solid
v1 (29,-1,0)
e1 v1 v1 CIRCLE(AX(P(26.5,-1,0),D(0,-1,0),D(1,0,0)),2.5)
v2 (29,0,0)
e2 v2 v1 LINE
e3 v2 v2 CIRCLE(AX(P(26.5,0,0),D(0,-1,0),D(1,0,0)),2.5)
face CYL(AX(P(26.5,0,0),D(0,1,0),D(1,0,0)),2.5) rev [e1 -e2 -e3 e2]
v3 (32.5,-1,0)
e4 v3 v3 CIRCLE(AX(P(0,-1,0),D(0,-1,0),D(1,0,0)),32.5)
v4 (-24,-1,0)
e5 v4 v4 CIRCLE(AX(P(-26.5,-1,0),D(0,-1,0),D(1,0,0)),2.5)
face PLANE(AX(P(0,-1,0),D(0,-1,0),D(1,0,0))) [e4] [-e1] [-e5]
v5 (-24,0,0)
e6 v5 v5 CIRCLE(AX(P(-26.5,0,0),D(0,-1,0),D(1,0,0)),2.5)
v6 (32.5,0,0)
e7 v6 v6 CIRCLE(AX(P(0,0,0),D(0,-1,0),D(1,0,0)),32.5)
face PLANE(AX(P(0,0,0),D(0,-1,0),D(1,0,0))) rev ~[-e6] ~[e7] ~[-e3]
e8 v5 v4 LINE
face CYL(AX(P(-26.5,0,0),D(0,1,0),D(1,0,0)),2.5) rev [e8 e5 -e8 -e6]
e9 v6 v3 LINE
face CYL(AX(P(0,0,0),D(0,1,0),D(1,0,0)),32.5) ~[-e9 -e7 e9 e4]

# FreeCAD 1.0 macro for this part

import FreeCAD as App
import Part
import Sketcher

V = App.Vector

doc = App.newDocument("Part")
params = doc.addObject("Spreadsheet::Sheet", "Params")
for row, (alias, value) in enumerate([
    ("sketch1_diameter", "65 mm"),
    ("sketch1_diameter2", "5 mm"),
    ("pad1_length", "1 mm"),
], start=1):
    params.set(f"A{row}", alias)
    params.set(f"B{row}", "=" + value)
    params.setAlias(f"B{row}", alias)

body = doc.addObject("PartDesign::Body", "Body")

# Sketch on XZ plane
sketch1 = body.newObject("Sketcher::SketchObject", "Sketch")
sketch1.AttachmentSupport = (doc.getObject("XZ_Plane"), [""])
sketch1.MapMode = "FlatFace"
sketch1.addGeometry([
    Part.Circle(V(0, 0, 0), V(0, 0, 1), 32.5),
    Part.Circle(V(-26.5, 0, 0), V(0, 0, 1), 2.5),
    Part.Circle(V(26.5, 0, 0), V(0, 0, 1), 2.5),
], False)
sketch1.addConstraint([
    Sketcher.Constraint("Coincident", 0, 3, -1, 1),
    Sketcher.Constraint("Equal", 1, 2),
    Sketcher.Constraint("Symmetric", 1, 3, 2, 3, -1, 1),
    Sketcher.Constraint("PointOnObject", 1, 3, -1),
    Sketcher.Constraint("Diameter", 0, 65.0),
    Sketcher.Constraint("Diameter", 1, 5.0),
    Sketcher.Constraint("DistanceX", 1, 3, 2, 3, 53.0),
])
sketch1.setExpression("Constraints[4]", "Params.sketch1_diameter")
sketch1.setExpression("Constraints[5]", "Params.sketch1_diameter2")
pad1 = body.newObject("PartDesign::Pad", "Pad")
pad1.Profile = sketch1
pad1.setExpression("Length", "Params.pad1_length")

doc.recompute()
